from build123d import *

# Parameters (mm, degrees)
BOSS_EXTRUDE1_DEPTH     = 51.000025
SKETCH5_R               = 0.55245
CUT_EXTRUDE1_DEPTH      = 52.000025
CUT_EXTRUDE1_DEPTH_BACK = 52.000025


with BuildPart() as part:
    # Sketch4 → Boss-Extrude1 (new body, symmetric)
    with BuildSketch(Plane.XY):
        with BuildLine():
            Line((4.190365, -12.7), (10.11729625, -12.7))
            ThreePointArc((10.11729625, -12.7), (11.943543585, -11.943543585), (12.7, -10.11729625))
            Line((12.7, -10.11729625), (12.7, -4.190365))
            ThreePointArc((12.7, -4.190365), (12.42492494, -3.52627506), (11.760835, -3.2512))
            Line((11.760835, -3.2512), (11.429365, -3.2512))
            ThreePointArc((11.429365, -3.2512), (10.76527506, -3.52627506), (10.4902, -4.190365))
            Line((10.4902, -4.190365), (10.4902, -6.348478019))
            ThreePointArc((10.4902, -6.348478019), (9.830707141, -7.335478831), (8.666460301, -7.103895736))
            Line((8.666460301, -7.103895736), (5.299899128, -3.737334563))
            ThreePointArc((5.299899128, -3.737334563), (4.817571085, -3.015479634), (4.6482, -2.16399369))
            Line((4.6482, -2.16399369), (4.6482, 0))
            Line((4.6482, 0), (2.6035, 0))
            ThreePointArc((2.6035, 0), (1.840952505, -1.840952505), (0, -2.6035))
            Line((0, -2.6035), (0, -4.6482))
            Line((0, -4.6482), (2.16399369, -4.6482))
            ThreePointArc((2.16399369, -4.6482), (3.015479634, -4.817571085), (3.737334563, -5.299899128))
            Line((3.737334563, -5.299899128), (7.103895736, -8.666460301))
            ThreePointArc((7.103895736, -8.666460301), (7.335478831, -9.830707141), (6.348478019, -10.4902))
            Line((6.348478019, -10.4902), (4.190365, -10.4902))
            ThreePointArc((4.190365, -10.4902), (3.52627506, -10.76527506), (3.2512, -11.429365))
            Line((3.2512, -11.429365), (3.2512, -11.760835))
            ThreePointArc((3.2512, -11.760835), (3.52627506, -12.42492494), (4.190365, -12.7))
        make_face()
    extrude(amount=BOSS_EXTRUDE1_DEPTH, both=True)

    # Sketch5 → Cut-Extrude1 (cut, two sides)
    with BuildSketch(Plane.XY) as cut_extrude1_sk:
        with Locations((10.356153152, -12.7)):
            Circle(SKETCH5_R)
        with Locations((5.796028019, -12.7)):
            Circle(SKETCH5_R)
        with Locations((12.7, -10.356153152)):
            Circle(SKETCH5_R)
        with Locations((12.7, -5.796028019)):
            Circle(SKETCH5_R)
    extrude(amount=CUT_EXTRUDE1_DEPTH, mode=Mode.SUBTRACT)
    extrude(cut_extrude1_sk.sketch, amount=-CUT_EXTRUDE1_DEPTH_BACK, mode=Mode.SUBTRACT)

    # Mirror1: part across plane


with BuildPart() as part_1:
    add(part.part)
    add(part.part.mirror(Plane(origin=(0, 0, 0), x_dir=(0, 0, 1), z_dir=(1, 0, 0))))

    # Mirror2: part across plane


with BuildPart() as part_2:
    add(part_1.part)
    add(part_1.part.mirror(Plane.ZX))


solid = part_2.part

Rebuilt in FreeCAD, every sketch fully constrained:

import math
import FreeCAD as App
import Part
import Sketcher

V = App.Vector
Q = App.Units.Quantity

doc = App.newDocument("Part")
params = doc.addObject("Spreadsheet::Sheet", "Params")
for row, (alias, value) in enumerate([
    ("pad1_length", "102.00005 mm"),
], start=1):
    params.set(f"A{row}", alias)
    params.set(f"B{row}", "=" + value)
    params.setAlias(f"B{row}", alias)

body = doc.addObject("PartDesign::Body", "Body")

# Sketch on XY plane
sketch1 = body.newObject("Sketcher::SketchObject", "Sketch")
sketch1.AttachmentSupport = (doc.getObject("XY_Plane"), [""])
sketch1.MapMode = "FlatFace"
sketch1.addGeometry(Part.LineSegment(V(4.190365, -12.7, 0), V(10.117296, -12.7, 0)), False)
sketch1.addGeometry(Part.ArcOfCircle(Part.Circle(V(10.117296, -10.117296, 0), V(0, 0, 1), 2.582704), math.radians(-90), math.radians(0)), False)
sketch1.addGeometry(Part.LineSegment(V(12.7, -10.117296, 0), V(12.7, -4.190365, 0)), False)
sketch1.addGeometry(Part.ArcOfCircle(Part.Circle(V(11.760835, -4.190365, 0), V(0, 0, 1), 0.939165), math.radians(0), math.radians(90)), False)
sketch1.addGeometry(Part.LineSegment(V(11.760835, -3.2512, 0), V(11.429365, -3.2512, 0)), False)
sketch1.addGeometry(Part.ArcOfCircle(Part.Circle(V(11.429365, -4.190365, 0), V(0, 0, 1), 0.939165), math.radians(90), math.radians(180)), False)
sketch1.addGeometry(Part.LineSegment(V(10.4902, -4.190365, 0), V(10.4902, -6.348478, 0)), False)
sketch1.addGeometry(Part.ArcOfCircle(Part.Circle(V(9.421878, -6.348478, 0), V(0, 0, 1), 1.068322), math.radians(-135), math.radians(0)), False)
sketch1.addGeometry(Part.LineSegment(V(8.66646, -7.103896, 0), V(5.299899, -3.737335, 0)), False)
sketch1.addGeometry(Part.ArcOfCircle(Part.Circle(V(6.87324, -2.163994, 0), V(0, 0, 1), 2.22504), math.radians(-180), math.radians(-135)), False)
sketch1.addGeometry(Part.LineSegment(V(4.6482, -2.163994, 0), V(4.6482, 0, 0)), False)
sketch1.addGeometry(Part.LineSegment(V(4.6482, 0, 0), V(2.6035, 0, 0)), False)
sketch1.addGeometry(Part.ArcOfCircle(Part.Circle(V(0, 0, 0), V(0, 0, 1), 2.6035), math.radians(-90), math.radians(0)), False)
sketch1.addGeometry(Part.LineSegment(V(0, -2.6035, 0), V(0, -4.6482, 0)), False)
sketch1.addGeometry(Part.LineSegment(V(0, -4.6482, 0), V(2.163994, -4.6482, 0)), False)
sketch1.addGeometry(Part.ArcOfCircle(Part.Circle(V(2.163994, -6.87324, 0), V(0, 0, 1), 2.22504), math.radians(45), math.radians(90)), False)
sketch1.addGeometry(Part.LineSegment(V(3.737335, -5.299899, 0), V(7.103896, -8.66646, 0)), False)
sketch1.addGeometry(Part.ArcOfCircle(Part.Circle(V(6.348478, -9.421878, 0), V(0, 0, 1), 1.068322), math.radians(-90), math.radians(45)), False)
sketch1.addGeometry(Part.LineSegment(V(6.348478, -10.4902, 0), V(4.190365, -10.4902, 0)), False)
sketch1.addGeometry(Part.ArcOfCircle(Part.Circle(V(4.190365, -11.429365, 0), V(0, 0, 1), 0.939165), math.radians(90), math.radians(180)), False)
sketch1.addGeometry(Part.LineSegment(V(3.2512, -11.429365, 0), V(3.2512, -11.760835, 0)), False)
sketch1.addGeometry(Part.ArcOfCircle(Part.Circle(V(4.190365, -11.760835, 0), V(0, 0, 1), 0.939165), math.radians(-180), math.radians(-90)), False)
sketch1.addConstraint(Sketcher.Constraint("Tangent", 0, 2, 1, 1))
sketch1.addConstraint(Sketcher.Constraint("Tangent", 1, 2, 2, 1))
sketch1.addConstraint(Sketcher.Constraint("Tangent", 2, 2, 3, 1))
sketch1.addConstraint(Sketcher.Constraint("Tangent", 3, 2, 4, 1))
sketch1.addConstraint(Sketcher.Constraint("Tangent", 4, 2, 5, 1))
sketch1.addConstraint(Sketcher.Constraint("Tangent", 5, 2, 6, 1))
sketch1.addConstraint(Sketcher.Constraint("Tangent", 6, 2, 7, 2))
sketch1.addConstraint(Sketcher.Constraint("Tangent", 7, 1, 8, 1))
sketch1.addConstraint(Sketcher.Constraint("Tangent", 8, 2, 9, 2))
sketch1.addConstraint(Sketcher.Constraint("Tangent", 9, 1, 10, 1))
sketch1.addConstraint(Sketcher.Constraint("Coincident", 10, 2, 11, 1))
sketch1.addConstraint(Sketcher.Constraint("Coincident", 11, 2, 12, 2))
sketch1.addConstraint(Sketcher.Constraint("Coincident", 12, 1, 13, 1))
sketch1.addConstraint(Sketcher.Constraint("Coincident", 13, 2, 14, 1))
sketch1.addConstraint(Sketcher.Constraint("Tangent", 14, 2, 15, 2))
sketch1.addConstraint(Sketcher.Constraint("Tangent", 15, 1, 16, 1))
sketch1.addConstraint(Sketcher.Constraint("Tangent", 16, 2, 17, 2))
sketch1.addConstraint(Sketcher.Constraint("Tangent", 17, 1, 18, 1))
sketch1.addConstraint(Sketcher.Constraint("Tangent", 18, 2, 19, 1))
sketch1.addConstraint(Sketcher.Constraint("Tangent", 19, 2, 20, 1))
sketch1.addConstraint(Sketcher.Constraint("Tangent", 20, 2, 21, 1))
sketch1.addConstraint(Sketcher.Constraint("Tangent", 21, 2, 0, 1))
sketch1.addConstraint(Sketcher.Constraint("Horizontal", 0))
sketch1.addConstraint(Sketcher.Constraint("Vertical", 2))
sketch1.addConstraint(Sketcher.Constraint("Horizontal", 4))
sketch1.addConstraint(Sketcher.Constraint("Vertical", 6))
sketch1.addConstraint(Sketcher.Constraint("Vertical", 10))
sketch1.addConstraint(Sketcher.Constraint("Horizontal", 11))
sketch1.addConstraint(Sketcher.Constraint("Vertical", 13))
sketch1.addConstraint(Sketcher.Constraint("Horizontal", 14))
sketch1.addConstraint(Sketcher.Constraint("Horizontal", 18))
sketch1.addConstraint(Sketcher.Constraint("Vertical", 20))
sketch1.addConstraint(Sketcher.Constraint("Coincident", 12, 3, -1, 1))
sketch1.addConstraint(Sketcher.Constraint("Equal", 3, 5))
sketch1.addConstraint(Sketcher.Constraint("Equal", 9, 15))
sketch1.addConstraint(Sketcher.Constraint("Equal", 7, 17))
sketch1.addConstraint(Sketcher.Constraint("Equal", 5, 19))
sketch1.addConstraint(Sketcher.Constraint("Equal", 19, 21))
sketch1.addConstraint(Sketcher.Constraint("PointOnObject", 10, 2, -1))
sketch1.addConstraint(Sketcher.Constraint("PointOnObject", 12, 1, -2))
sketch1.addConstraint(Sketcher.Constraint("Parallel", 8, 16))
sketch1.addConstraint(Sketcher.Constraint("Equal", 0, 2))
sketch1.addConstraint(Sketcher.Constraint("Equal", 18, 6))
sketch1.addConstraint(Sketcher.Constraint("Equal", 14, 10))
sketch1.addConstraint(Sketcher.Constraint("Equal", 11, 13))
sketch1.addConstraint(Sketcher.Constraint("Equal", 4, 20))
sketch1.addConstraint(Sketcher.Constraint("Equal", 8, 16))
sketch1.addConstraint(Sketcher.Constraint("DistanceY", 0, 2, -1, 1, Q("0.5 in")))
sketch1.addConstraint(Sketcher.Constraint("Radius", 9, Q("0.0876 in")))
sketch1.addConstraint(Sketcher.Constraint("Radius", 12, Q("0.1025 in")))
sketch1.addConstraint(Sketcher.Constraint("DistanceX", 9, 1, 5, 2, Q("0.23 in")))
sketch1.addConstraint(Sketcher.Constraint("DistanceX", 11, 2, 11, 1, Q("0.0805 in")))
sketch1.addConstraint(Sketcher.Constraint("DistanceY", 3, 2, -1, 1, Q("0.128 in")))
sketch1.addConstraint(Sketcher.Constraint("Radius", 7, 1.068322))
sketch1.addConstraint(Sketcher.Constraint("DistanceX", 17, 3, 7, 3, Q("0.121 in")))
sketch1.addConstraint(Sketcher.Constraint("Radius", 1, 2.582704))
sketch1.addConstraint(Sketcher.Constraint("Radius", 3, 0.939165))
pad1 = body.newObject("PartDesign::Pad", "Pad")
pad1.Profile = sketch1
pad1.setExpression("Length", "Params.pad1_length")
pad1.Midplane = True

# Sketch on XY plane
sketch2 = body.newObject("Sketcher::SketchObject", "Sketch001")
sketch2.AttachmentSupport = (doc.getObject("XY_Plane"), [""])
sketch2.MapMode = "FlatFace"
sketch2.addGeometry(Part.Circle(V(10.356153, -12.7, 0), V(0, 0, 1), 0.55245), False)
sketch2.addGeometry(Part.Circle(V(5.796028, -12.7, 0), V(0, 0, 1), 0.55245), False)
sketch2.addGeometry(Part.Circle(V(12.7, -10.356153, 0), V(0, 0, 1), 0.55245), False)
sketch2.addGeometry(Part.Circle(V(12.7, -5.796028, 0), V(0, 0, 1), 0.55245), False)
sketch2.addConstraint(Sketcher.Constraint("Equal", 0, 1))
sketch2.addConstraint(Sketcher.Constraint("Equal", 1, 2))
sketch2.addConstraint(Sketcher.Constraint("Equal", 2, 3))
sketch2.addConstraint(Sketcher.Constraint("Horizontal", 0, 3, 1, 3))
sketch2.addConstraint(Sketcher.Constraint("Vertical", 2, 3, 3, 3))
sketch2.addConstraint(Sketcher.Constraint("Diameter", 0, Q("0.0435 in")))
sketch2.addConstraint(Sketcher.Constraint("DistanceY", 0, 3, -1, 1, Q("0.5 in")))
sketch2.addConstraint(Sketcher.Constraint("DistanceX", -1, 1, 2, 3, Q("0.5 in")))
sketch2.addConstraint(Sketcher.Constraint("DistanceX", -1, 1, 1, 3, 5.796028))
sketch2.addConstraint(Sketcher.Constraint("DistanceY", 3, 3, -1, 1, 5.796028))
sketch2.addConstraint(Sketcher.Constraint("DistanceX", -1, 1, 0, 3, 10.356153))
sketch2.addConstraint(Sketcher.Constraint("DistanceY", 2, 3, -1, 1, 10.356153))
pocket1 = body.newObject("PartDesign::Pocket", "Pocket")
pocket1.Profile = sketch2
pocket1.Type = "ThroughAll"
pocket1.Midplane = True
body2 = doc.addObject("PartDesign::Body", "Body001")
doc.recompute()

body2.BaseFeature = body
doc.recompute()

mirroring = doc.addObject("Part::Mirroring", "Mirroring")
mirroring.Source = body
mirroring.Base = V(0, 0, 0)
mirroring.Normal = V(1, 0, 0)
body3 = doc.addObject("PartDesign::Body", "Body002")
body3.BaseFeature = mirroring
boolean = body2.newObject("PartDesign::Boolean", "Boolean")
boolean.Type = "Fuse"
boolean.addObjects([body3])
doc.recompute()
body4 = doc.addObject("PartDesign::Body", "Body003")
doc.recompute()

body4.BaseFeature = body2
doc.recompute()

mirroring2 = doc.addObject("Part::Mirroring", "Mirroring001")
mirroring2.Source = body2
mirroring2.Base = V(0, 0, 0)
mirroring2.Normal = V(0, 1, 0)
body5 = doc.addObject("PartDesign::Body", "Body004")
body5.BaseFeature = mirroring2
boolean2 = body4.newObject("PartDesign::Boolean", "Boolean001")
boolean2.Type = "Fuse"
boolean2.addObjects([body5])
doc.recompute()
mirroring.Visibility = False
mirroring2.Visibility = False

doc.recompute()
